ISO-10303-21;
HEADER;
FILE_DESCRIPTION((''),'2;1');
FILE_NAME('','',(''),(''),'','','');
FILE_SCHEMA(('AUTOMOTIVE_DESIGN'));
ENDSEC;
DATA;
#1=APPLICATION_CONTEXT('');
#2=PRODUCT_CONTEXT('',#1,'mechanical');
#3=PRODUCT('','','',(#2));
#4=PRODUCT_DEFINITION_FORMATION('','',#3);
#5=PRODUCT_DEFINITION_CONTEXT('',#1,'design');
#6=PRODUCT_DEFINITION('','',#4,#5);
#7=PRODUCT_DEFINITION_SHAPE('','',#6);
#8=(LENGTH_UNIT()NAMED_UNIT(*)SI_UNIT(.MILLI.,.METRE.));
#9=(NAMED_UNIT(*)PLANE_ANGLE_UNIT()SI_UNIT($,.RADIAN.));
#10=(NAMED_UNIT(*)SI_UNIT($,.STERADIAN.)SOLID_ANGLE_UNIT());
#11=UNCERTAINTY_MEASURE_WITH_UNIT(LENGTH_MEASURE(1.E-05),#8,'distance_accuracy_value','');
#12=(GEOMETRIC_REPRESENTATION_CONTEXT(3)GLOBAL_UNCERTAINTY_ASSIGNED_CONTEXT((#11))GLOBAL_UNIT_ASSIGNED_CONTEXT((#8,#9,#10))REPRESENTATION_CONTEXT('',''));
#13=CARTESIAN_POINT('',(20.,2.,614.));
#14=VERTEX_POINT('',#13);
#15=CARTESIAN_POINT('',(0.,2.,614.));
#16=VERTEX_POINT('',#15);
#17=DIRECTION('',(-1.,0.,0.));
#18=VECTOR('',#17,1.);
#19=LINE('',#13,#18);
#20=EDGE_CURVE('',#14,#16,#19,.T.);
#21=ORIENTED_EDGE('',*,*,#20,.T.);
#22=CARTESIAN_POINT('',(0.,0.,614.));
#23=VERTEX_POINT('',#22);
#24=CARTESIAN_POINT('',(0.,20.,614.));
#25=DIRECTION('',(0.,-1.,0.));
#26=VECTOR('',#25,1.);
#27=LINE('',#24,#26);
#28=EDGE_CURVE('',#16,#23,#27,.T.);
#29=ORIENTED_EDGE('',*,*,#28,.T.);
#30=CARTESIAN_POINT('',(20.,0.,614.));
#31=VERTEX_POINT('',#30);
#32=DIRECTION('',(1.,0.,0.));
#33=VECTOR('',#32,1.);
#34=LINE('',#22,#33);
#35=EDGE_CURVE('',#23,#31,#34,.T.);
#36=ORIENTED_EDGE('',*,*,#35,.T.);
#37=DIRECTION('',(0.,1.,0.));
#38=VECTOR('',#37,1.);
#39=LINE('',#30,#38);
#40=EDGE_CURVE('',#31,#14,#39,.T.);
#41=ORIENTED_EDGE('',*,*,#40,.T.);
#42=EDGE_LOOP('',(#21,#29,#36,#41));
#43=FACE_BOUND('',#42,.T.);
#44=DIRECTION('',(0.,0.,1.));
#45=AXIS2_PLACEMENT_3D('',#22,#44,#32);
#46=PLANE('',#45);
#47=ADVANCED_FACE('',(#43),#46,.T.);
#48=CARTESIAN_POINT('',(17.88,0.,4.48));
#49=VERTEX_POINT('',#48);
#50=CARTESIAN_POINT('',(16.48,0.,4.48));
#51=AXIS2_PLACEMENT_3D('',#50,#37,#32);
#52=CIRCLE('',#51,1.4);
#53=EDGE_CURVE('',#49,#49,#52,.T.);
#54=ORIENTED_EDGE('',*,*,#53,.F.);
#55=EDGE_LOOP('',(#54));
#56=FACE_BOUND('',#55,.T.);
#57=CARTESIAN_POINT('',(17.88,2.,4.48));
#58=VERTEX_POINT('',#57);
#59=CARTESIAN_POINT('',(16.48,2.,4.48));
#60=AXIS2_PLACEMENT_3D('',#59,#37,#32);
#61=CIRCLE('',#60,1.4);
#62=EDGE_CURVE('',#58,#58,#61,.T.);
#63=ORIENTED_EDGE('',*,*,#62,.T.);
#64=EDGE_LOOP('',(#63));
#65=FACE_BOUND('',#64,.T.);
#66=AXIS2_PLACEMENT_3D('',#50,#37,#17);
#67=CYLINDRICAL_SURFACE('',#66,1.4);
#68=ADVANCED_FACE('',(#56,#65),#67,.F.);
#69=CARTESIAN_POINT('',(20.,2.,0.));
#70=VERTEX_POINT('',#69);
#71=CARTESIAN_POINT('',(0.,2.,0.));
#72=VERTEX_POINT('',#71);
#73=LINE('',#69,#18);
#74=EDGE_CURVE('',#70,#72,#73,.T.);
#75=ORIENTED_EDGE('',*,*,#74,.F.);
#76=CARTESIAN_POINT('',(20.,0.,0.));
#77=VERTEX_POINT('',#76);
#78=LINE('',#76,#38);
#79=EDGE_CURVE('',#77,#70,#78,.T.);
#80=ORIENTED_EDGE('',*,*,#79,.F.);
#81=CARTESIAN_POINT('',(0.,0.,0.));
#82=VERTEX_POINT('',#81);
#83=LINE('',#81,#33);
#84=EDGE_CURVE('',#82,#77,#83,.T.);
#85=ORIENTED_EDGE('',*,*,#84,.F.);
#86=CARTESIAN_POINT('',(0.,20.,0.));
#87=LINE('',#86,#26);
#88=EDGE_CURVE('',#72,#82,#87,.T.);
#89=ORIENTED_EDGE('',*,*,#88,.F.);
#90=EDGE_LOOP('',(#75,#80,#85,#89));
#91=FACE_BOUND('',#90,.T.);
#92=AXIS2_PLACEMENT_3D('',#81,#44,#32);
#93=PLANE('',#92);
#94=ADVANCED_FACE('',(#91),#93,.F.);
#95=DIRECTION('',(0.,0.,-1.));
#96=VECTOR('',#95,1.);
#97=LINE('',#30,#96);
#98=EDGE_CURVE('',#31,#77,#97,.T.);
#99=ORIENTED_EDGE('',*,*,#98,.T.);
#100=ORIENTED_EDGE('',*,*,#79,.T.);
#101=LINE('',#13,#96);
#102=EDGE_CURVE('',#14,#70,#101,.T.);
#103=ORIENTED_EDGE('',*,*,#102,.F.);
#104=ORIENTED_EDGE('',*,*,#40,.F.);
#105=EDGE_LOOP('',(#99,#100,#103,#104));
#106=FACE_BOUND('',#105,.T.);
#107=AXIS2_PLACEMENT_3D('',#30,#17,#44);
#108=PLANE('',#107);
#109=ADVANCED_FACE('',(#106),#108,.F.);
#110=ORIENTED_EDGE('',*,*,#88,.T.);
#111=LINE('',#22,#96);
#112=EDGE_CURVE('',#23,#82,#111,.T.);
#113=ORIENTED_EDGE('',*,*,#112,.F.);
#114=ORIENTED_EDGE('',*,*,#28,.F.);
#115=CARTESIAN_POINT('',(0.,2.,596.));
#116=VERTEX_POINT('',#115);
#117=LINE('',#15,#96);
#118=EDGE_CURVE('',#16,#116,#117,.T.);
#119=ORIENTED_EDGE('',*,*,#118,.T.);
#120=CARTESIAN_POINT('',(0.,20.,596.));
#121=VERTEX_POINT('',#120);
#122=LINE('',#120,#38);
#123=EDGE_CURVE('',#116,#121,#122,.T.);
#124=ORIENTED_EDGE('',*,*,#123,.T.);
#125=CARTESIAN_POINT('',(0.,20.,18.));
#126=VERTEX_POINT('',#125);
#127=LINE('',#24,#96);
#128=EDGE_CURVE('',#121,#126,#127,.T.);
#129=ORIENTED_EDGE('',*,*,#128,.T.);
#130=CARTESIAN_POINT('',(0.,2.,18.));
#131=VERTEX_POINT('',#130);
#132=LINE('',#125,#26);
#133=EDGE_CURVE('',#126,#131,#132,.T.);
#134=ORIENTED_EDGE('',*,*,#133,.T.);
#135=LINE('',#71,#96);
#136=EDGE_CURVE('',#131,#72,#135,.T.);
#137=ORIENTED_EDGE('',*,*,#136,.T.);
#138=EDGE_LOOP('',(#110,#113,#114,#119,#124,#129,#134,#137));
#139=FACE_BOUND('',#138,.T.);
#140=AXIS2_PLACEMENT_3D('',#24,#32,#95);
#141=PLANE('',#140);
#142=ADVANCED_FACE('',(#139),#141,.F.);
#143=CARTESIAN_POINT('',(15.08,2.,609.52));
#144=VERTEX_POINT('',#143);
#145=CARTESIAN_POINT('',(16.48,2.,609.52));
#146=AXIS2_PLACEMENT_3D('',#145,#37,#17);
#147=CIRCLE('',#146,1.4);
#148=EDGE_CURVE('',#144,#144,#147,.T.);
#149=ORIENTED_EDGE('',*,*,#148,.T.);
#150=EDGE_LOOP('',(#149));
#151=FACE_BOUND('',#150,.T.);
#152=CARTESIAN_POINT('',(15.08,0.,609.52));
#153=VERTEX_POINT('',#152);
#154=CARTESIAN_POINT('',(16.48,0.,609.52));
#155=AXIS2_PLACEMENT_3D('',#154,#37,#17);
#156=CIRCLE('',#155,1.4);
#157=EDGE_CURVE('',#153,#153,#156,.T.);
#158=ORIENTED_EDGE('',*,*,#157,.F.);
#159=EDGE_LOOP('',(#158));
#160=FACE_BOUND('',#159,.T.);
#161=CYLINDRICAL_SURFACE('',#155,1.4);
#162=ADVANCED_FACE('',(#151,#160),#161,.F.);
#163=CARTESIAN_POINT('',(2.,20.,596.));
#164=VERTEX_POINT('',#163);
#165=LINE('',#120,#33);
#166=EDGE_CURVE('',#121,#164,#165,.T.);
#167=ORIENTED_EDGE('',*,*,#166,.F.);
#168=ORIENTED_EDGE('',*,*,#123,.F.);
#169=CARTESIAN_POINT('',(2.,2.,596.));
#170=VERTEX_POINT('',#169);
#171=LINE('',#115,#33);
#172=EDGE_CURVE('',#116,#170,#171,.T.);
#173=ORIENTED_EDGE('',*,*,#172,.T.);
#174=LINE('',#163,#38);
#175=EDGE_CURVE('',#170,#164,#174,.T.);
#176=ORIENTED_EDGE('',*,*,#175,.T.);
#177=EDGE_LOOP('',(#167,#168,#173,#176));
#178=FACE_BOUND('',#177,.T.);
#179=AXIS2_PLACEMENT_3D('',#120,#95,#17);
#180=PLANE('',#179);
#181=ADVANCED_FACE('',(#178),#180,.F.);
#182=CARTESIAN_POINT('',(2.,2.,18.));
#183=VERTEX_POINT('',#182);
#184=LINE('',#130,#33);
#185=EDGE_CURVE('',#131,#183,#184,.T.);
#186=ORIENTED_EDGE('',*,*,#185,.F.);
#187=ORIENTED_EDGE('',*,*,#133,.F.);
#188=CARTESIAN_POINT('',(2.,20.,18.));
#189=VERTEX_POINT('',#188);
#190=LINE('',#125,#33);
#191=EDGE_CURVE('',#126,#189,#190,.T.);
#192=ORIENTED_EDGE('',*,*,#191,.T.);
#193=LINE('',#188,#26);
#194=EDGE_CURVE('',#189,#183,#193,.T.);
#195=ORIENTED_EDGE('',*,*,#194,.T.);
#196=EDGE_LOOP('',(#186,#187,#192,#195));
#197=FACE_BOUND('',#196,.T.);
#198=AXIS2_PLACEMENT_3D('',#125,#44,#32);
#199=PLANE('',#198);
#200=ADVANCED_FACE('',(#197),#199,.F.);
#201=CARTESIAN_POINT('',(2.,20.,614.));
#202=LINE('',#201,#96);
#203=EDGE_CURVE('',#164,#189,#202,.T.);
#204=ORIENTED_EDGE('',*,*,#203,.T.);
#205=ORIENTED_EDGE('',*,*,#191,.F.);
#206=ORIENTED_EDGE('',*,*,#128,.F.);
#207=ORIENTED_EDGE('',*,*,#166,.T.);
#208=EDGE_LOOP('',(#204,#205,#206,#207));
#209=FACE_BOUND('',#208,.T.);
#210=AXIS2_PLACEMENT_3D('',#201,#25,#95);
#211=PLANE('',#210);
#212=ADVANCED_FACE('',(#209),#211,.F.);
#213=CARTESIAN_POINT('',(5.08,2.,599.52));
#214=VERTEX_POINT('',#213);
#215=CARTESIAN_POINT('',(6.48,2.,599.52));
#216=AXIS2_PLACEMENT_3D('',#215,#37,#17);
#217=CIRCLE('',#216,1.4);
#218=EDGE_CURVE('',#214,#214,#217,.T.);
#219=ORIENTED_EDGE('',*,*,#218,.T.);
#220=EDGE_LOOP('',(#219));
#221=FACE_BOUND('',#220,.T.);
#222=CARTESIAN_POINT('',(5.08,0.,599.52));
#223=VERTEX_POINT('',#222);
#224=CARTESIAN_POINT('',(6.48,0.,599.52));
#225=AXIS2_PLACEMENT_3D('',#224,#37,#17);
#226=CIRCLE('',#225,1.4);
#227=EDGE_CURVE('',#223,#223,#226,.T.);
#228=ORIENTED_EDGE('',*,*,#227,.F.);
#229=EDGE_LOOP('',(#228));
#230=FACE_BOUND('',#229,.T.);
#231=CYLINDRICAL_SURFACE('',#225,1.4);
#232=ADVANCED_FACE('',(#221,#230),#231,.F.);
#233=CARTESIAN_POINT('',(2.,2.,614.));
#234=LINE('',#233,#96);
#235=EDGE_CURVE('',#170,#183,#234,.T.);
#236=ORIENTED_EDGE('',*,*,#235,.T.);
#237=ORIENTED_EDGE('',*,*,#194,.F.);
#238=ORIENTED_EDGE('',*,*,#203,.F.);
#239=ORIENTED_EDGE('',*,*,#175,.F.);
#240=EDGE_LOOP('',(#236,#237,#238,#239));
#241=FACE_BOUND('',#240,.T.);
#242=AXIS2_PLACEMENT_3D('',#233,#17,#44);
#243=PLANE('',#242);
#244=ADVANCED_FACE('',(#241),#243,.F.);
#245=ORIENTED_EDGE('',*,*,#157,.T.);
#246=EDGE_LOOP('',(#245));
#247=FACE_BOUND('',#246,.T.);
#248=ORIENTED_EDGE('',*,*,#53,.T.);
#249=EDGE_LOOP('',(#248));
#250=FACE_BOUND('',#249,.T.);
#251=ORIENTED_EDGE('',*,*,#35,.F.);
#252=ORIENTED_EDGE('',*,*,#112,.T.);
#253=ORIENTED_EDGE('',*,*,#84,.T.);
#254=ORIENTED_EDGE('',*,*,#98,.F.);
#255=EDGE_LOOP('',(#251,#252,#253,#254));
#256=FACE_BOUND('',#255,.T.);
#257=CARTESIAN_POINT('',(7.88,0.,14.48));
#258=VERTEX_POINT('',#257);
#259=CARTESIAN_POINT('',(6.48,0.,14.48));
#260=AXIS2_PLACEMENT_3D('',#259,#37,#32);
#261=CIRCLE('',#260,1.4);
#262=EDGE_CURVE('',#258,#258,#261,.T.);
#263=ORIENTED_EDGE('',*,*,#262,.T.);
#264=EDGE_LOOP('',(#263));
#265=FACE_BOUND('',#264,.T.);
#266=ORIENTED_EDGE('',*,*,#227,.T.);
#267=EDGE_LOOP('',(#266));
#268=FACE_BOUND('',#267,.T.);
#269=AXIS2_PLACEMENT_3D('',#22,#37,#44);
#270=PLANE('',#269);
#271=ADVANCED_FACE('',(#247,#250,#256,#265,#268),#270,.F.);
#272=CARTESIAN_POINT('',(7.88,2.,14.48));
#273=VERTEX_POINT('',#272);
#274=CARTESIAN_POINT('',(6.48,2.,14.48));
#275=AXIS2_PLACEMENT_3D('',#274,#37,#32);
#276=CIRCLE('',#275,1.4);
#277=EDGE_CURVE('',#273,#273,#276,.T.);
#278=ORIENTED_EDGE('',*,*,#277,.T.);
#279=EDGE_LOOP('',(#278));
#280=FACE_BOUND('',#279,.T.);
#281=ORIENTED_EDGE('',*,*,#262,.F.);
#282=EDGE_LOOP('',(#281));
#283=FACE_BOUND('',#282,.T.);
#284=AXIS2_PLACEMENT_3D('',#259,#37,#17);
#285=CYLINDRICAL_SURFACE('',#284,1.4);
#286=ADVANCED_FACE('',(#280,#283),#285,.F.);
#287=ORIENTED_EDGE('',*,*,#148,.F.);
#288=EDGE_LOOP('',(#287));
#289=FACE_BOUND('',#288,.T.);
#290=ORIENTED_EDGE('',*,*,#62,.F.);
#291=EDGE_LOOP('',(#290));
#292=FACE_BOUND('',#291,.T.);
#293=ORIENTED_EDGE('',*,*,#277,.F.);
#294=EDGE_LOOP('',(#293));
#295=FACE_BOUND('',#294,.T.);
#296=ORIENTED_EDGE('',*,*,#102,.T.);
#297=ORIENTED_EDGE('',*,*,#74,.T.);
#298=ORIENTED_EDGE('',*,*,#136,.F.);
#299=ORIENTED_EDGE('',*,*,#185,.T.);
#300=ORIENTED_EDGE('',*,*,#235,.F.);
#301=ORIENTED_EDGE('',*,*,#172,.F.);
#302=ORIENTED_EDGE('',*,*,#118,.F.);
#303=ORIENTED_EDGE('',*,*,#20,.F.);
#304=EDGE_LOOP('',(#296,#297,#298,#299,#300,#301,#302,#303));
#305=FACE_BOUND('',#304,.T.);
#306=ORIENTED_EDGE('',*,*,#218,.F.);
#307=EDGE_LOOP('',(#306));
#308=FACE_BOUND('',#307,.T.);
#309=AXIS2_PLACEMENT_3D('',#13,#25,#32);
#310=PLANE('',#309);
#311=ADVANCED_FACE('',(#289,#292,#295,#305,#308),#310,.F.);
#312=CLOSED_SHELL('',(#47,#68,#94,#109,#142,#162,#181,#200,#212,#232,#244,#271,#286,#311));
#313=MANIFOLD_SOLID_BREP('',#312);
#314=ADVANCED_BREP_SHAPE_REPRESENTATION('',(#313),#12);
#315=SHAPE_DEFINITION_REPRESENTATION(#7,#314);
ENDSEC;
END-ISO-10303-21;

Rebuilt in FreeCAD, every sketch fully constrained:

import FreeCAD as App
import Part
import Sketcher
from FreeCAD import Vector


def add_polygon(sketch, points):
    """Adds a closed chain of lines whose ends are joined by coincident constraints."""
    first, n = sketch.GeometryCount, len(points)
    for a, b in zip(points, points[1:] + points[:1]):
        sketch.addGeometry(Part.LineSegment(App.Vector(*a, 0), App.Vector(*b, 0)), False)
    for i in range(n):
        sketch.addConstraint(Sketcher.Constraint("Coincident", first + i, 2, first + (i + 1) % n, 1))

doc = App.newDocument("Part")
body = doc.addObject("PartDesign::Body", "Body")

# Sketch on XY plane
sketch1 = body.newObject("Sketcher::SketchObject", "Sketch")
sketch1.AttachmentSupport = (doc.getObject("XY_Plane"), [""])
sketch1.MapMode = "FlatFace"
add_polygon(sketch1, [(0, 0), (20, 0), (20, 2), (2, 2), (2, 20), (0, 20)])  # lines 0-5
sketch1.addConstraint(Sketcher.Constraint("Horizontal", 0))
sketch1.addConstraint(Sketcher.Constraint("Vertical", 1))
sketch1.addConstraint(Sketcher.Constraint("Horizontal", 2))
sketch1.addConstraint(Sketcher.Constraint("Vertical", 3))
sketch1.addConstraint(Sketcher.Constraint("Horizontal", 4))
sketch1.addConstraint(Sketcher.Constraint("Vertical", 5))
sketch1.addConstraint(Sketcher.Constraint("Coincident", 5, 2, -1, 1))
sketch1.addConstraint(Sketcher.Constraint("Equal", 4, 1))
sketch1.addConstraint(Sketcher.Constraint("Equal", 2, 3))
sketch1.addConstraint(Sketcher.Constraint("DistanceX", 0, 1, 0, 2, 20.0))
sketch1.addConstraint(Sketcher.Constraint("DistanceX", 2, 2, 2, 1, 18.0))
pad1 = body.newObject("PartDesign::Pad", "Pad")
pad1.Profile = sketch1
pad1.Length = 614

# Sketch on YZ plane
sketch2 = body.newObject("Sketcher::SketchObject", "Sketch001")
sketch2.AttachmentSupport = (doc.getObject("YZ_Plane"), [""])
sketch2.MapMode = "FlatFace"
sketch2.AttachmentOffset = App.Placement(Vector(0, 0, 2), App.Rotation())
add_polygon(sketch2, [(20, 614), (2, 614), (2, 596), (20, 596)])  # lines 0-3
add_polygon(sketch2, [(20, 18), (2, 18), (2, 0), (20, 0)])  # lines 4-7
sketch2.addConstraint(Sketcher.Constraint("Horizontal", 0))
sketch2.addConstraint(Sketcher.Constraint("Vertical", 1))
sketch2.addConstraint(Sketcher.Constraint("Horizontal", 2))
sketch2.addConstraint(Sketcher.Constraint("Vertical", 3))
sketch2.addConstraint(Sketcher.Constraint("Horizontal", 4))
sketch2.addConstraint(Sketcher.Constraint("Vertical", 5))
sketch2.addConstraint(Sketcher.Constraint("Horizontal", 6))
sketch2.addConstraint(Sketcher.Constraint("Vertical", 7))
sketch2.addConstraint(Sketcher.Constraint("PointOnObject", 5, 2, -1))
sketch2.addConstraint(Sketcher.Constraint("Vertical", 1, 2, 4, 2))
sketch2.addConstraint(Sketcher.Constraint("Vertical", 3, 2, 6, 2))
sketch2.addConstraint(Sketcher.Constraint("Equal", 6, 1))
sketch2.addConstraint(Sketcher.Constraint("Equal", 3, 5))
sketch2.addConstraint(Sketcher.Constraint("DistanceX", 0, 2, 0, 1, 18.0))
sketch2.addConstraint(Sketcher.Constraint("DistanceX", -1, 1, 0, 2, 2.0))
sketch2.addConstraint(Sketcher.Constraint("DistanceY", -1, 1, 0, 2, 614.0))
pocket1 = body.newObject("PartDesign::Pocket", "Pocket")
pocket1.Profile = sketch2
pocket1.Type = "ThroughAll"

# Sketch on XZ plane
sketch3 = body.newObject("Sketcher::SketchObject", "Sketch002")
sketch3.AttachmentSupport = (doc.getObject("XZ_Plane"), [""])
sketch3.MapMode = "FlatFace"
sketch3.AttachmentOffset = App.Placement(Vector(0, 0, -2), App.Rotation())
sketch3.addGeometry(Part.Circle(Vector(6.5, 599.5, 0), Vector(0, 0, 1), 1.4), False)
sketch3.addGeometry(Part.Circle(Vector(6.5, 14.5, 0), Vector(0, 0, 1), 1.4), False)
sketch3.addGeometry(Part.Circle(Vector(16.5, 609.5, 0), Vector(0, 0, 1), 1.4), False)
sketch3.addGeometry(Part.Circle(Vector(16.5, 4.5, 0), Vector(0, 0, 1), 1.4), False)
sketch3.addConstraint(Sketcher.Constraint("Equal", 0, 1))
sketch3.addConstraint(Sketcher.Constraint("Equal", 1, 2))
sketch3.addConstraint(Sketcher.Constraint("Equal", 2, 3))
sketch3.addConstraint(Sketcher.Constraint("Vertical", 0, 3, 1, 3))
sketch3.addConstraint(Sketcher.Constraint("Vertical", 2, 3, 3, 3))
sketch3.addConstraint(Sketcher.Constraint("Diameter", 0, 2.8))
sketch3.addConstraint(Sketcher.Constraint("DistanceX", 0, 3, 2, 3, 10.0))
sketch3.addConstraint(Sketcher.Constraint("DistanceY", 0, 3, 2, 3, 10.0))
sketch3.addConstraint(Sketcher.Constraint("DistanceY", 3, 3, 1, 3, 10.0))
sketch3.addConstraint(Sketcher.Constraint("DistanceX", -1, 1, 0, 3, 6.48))
sketch3.addConstraint(Sketcher.Constraint("DistanceY", -1, 1, 0, 3, 599.52))
sketch3.addConstraint(Sketcher.Constraint("DistanceY", -1, 1, 1, 3, 14.48))
pocket2 = body.newObject("PartDesign::Pocket", "Pocket001")
pocket2.Profile = sketch3
pocket2.Type = "ThroughAll"
pocket2.Reversed = True

doc.recompute()
